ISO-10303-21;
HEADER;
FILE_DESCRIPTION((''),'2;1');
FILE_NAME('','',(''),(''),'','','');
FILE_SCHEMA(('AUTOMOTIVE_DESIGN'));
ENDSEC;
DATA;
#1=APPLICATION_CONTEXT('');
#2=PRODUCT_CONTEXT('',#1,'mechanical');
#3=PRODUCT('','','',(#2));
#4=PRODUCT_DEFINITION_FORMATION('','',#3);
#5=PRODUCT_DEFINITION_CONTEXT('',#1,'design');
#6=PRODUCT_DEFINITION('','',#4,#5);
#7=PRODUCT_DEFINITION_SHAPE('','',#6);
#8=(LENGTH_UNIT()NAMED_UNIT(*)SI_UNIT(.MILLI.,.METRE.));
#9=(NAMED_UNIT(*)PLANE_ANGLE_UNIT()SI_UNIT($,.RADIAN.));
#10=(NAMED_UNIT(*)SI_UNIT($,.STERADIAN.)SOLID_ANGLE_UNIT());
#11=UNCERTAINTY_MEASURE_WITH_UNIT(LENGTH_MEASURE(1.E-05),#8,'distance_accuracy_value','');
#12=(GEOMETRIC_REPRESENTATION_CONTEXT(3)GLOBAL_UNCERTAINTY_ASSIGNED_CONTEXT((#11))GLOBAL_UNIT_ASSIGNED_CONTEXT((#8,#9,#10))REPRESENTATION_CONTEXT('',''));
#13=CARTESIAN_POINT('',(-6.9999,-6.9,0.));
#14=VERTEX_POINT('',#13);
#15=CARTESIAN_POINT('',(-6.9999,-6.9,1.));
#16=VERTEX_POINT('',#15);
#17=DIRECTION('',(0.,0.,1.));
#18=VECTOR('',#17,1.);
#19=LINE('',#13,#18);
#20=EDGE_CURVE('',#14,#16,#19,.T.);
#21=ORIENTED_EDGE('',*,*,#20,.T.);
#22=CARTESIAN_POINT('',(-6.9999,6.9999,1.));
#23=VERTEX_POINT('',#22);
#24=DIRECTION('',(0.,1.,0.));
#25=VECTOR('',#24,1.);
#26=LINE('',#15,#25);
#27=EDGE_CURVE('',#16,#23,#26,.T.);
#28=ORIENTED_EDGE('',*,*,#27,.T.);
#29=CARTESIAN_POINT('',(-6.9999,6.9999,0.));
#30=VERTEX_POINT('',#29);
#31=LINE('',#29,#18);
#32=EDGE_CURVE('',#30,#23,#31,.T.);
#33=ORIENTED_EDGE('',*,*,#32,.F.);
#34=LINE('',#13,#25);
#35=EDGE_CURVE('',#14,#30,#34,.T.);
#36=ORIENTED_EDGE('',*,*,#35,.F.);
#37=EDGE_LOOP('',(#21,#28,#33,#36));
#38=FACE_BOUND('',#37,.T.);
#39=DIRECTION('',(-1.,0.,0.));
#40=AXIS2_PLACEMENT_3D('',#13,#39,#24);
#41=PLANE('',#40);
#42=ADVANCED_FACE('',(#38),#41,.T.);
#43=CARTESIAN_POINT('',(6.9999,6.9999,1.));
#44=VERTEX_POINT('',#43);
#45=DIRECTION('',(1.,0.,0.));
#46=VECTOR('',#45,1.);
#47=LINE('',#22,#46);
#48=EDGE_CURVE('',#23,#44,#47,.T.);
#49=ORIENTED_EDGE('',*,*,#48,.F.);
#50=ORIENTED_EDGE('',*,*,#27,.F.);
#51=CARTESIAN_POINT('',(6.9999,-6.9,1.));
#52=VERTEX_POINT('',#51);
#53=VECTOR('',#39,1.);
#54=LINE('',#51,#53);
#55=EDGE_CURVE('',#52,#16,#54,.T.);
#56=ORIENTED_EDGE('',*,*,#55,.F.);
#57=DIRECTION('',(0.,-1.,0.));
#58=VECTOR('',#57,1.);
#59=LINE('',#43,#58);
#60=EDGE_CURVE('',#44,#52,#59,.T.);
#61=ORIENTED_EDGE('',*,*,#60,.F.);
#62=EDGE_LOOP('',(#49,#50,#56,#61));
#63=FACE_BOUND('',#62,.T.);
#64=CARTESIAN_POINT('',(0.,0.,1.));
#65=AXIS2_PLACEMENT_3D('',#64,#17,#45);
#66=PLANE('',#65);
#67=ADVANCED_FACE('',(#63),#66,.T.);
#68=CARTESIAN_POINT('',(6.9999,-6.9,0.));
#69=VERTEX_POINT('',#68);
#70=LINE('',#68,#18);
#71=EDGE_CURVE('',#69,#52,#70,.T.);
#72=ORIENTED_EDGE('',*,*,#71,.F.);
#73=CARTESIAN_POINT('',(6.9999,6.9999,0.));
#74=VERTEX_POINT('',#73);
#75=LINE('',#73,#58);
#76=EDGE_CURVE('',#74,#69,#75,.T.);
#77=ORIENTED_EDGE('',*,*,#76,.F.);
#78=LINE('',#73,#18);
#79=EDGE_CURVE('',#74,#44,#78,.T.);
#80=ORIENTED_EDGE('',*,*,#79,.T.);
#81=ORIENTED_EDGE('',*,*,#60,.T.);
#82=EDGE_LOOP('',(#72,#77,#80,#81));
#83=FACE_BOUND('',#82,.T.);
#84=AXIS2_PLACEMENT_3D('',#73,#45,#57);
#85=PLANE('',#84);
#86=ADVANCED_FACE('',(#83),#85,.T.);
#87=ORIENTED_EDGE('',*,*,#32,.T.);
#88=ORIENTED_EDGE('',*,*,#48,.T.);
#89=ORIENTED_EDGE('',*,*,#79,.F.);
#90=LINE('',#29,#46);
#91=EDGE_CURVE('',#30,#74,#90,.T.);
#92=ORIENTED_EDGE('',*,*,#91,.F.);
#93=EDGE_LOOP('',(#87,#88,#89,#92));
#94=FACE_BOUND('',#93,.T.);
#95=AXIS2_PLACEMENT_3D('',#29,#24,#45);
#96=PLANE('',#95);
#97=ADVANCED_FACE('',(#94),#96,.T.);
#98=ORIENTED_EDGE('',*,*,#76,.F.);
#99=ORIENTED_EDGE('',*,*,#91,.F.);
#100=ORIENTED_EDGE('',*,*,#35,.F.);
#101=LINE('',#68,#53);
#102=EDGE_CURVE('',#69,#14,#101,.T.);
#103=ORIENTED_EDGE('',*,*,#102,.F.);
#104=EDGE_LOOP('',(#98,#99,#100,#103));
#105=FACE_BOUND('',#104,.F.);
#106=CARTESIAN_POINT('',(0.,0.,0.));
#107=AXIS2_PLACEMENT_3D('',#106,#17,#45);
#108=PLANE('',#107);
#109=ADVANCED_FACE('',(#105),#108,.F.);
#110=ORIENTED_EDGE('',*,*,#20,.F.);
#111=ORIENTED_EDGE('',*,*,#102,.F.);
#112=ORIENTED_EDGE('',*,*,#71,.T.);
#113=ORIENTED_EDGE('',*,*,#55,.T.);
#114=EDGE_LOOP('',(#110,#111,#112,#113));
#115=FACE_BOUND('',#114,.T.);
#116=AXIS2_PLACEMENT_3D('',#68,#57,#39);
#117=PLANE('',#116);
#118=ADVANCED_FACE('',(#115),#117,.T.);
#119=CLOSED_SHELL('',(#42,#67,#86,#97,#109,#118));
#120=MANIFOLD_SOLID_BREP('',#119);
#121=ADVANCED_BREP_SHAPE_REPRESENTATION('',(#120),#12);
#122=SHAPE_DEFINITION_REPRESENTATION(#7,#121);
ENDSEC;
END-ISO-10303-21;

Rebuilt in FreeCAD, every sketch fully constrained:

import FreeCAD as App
import Part
import Sketcher
from FreeCAD import Vector
Q = App.Units.Quantity


def add_polygon(sketch, points):
    """Adds a closed chain of lines whose ends are joined by coincident constraints."""
    first, n = sketch.GeometryCount, len(points)
    for a, b in zip(points, points[1:] + points[:1]):
        sketch.addGeometry(Part.LineSegment(App.Vector(*a, 0), App.Vector(*b, 0)), False)
    for i in range(n):
        sketch.addConstraint(Sketcher.Constraint("Coincident", first + i, 2, first + (i + 1) % n, 1))

doc = App.newDocument("Part")
body = doc.addObject("PartDesign::Body", "Body")

# Sketch on XY plane
sketch1 = body.newObject("Sketcher::SketchObject", "Sketch")
sketch1.AttachmentSupport = (doc.getObject("XY_Plane"), [""])
sketch1.MapMode = "FlatFace"
add_polygon(sketch1, [(7, 7), (-7, 7), (-7, -7), (7, -7)])  # lines 0-3
sketch1.addConstraint([
    Sketcher.Constraint("Horizontal", 0),
    Sketcher.Constraint("Vertical", 1),
    Sketcher.Constraint("Horizontal", 2),
    Sketcher.Constraint("Vertical", 3),
    Sketcher.Constraint("DistanceY", 1, 2, 1, 1, Q("13.9 mm")),
    Sketcher.Constraint("DistanceX", 0, 2, -1, 1, Q("7 mm")),
    Sketcher.Constraint("DistanceY", -1, 1, 0, 2, Q("7 mm")),
    Sketcher.Constraint("DistanceX", -1, 1, 2, 2, Q("7 mm")),
])
pad1 = body.newObject("PartDesign::Pad", "Pad")
pad1.Profile = sketch1
pad1.Length = 1

doc.recompute()
